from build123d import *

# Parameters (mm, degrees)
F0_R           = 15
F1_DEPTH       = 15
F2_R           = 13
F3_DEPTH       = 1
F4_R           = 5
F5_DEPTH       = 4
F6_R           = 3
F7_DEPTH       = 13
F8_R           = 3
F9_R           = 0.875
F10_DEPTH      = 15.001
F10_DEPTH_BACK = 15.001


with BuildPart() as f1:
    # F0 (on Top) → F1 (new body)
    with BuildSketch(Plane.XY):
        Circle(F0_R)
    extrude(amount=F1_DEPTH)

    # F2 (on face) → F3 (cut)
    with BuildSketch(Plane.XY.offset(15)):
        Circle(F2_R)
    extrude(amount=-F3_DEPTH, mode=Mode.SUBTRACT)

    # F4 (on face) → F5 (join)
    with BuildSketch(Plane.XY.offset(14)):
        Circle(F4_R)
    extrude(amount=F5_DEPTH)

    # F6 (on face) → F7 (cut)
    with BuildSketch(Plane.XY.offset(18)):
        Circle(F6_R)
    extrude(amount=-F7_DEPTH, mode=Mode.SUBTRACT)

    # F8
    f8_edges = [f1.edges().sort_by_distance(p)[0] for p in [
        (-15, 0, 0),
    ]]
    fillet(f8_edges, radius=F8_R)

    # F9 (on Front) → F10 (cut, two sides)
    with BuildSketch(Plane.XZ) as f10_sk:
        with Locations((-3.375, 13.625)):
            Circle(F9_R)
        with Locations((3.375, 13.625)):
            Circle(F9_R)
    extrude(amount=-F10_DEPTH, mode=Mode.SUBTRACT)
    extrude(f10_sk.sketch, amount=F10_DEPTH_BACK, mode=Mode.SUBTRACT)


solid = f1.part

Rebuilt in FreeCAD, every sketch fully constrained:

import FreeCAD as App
import Part
import Sketcher
from FreeCAD import Vector


def edges_at(feature, points):
    """Names of the edges that pass closest to the given points."""
    edges = feature.Shape.Edges
    near = lambda p: min(range(len(edges)), key=lambda i: edges[i].distToShape(Part.Vertex(*p))[0])
    return sorted({f"Edge{near(p) + 1}" for p in points})

doc = App.newDocument("Part")
body = doc.addObject("PartDesign::Body", "Body")

sketch1 = body.newObject("Sketcher::SketchObject", "Sketch")
sketch1.AttachmentSupport = (doc.getObject("XY_Plane"), [""])
sketch1.MapMode = "FlatFace"
sketch1.addGeometry(Part.Circle(Vector(0, 0, 0), Vector(0, 0, 1), 15), False)
sketch1.addConstraint(Sketcher.Constraint("Coincident", 0, 3, -1, 1))
sketch1.addConstraint(Sketcher.Constraint("Diameter", 0, 30.0))
pad1 = body.newObject("PartDesign::Pad", "Pad")
pad1.Profile = sketch1
pad1.Length = 15

sketch2 = body.newObject("Sketcher::SketchObject", "Sketch001")
sketch2.AttachmentSupport = (doc.getObject("XY_Plane"), [""])
sketch2.MapMode = "FlatFace"
sketch2.AttachmentOffset = App.Placement(Vector(0, 0, 15), App.Rotation())
sketch2.addGeometry(Part.Circle(Vector(0, 0, 0), Vector(0, 0, 1), 13), False)
sketch2.addConstraint(Sketcher.Constraint("Coincident", 0, 3, -1, 1))
sketch2.addConstraint(Sketcher.Constraint("Diameter", 0, 26.0))
pocket1 = body.newObject("PartDesign::Pocket", "Pocket")
pocket1.Profile = sketch2
pocket1.Length = 1

sketch3 = body.newObject("Sketcher::SketchObject", "Sketch002")
sketch3.AttachmentSupport = (doc.getObject("XY_Plane"), [""])
sketch3.MapMode = "FlatFace"
sketch3.AttachmentOffset = App.Placement(Vector(0, 0, 14), App.Rotation())
sketch3.addGeometry(Part.Circle(Vector(0, 0, 0), Vector(0, 0, 1), 5), False)
sketch3.addConstraint(Sketcher.Constraint("Coincident", 0, 3, -1, 1))
sketch3.addConstraint(Sketcher.Constraint("Diameter", 0, 10.0))
pad2 = body.newObject("PartDesign::Pad", "Pad001")
pad2.Profile = sketch3
pad2.Length = 4

sketch4 = body.newObject("Sketcher::SketchObject", "Sketch003")
sketch4.AttachmentSupport = (doc.getObject("XY_Plane"), [""])
sketch4.MapMode = "FlatFace"
sketch4.AttachmentOffset = App.Placement(Vector(0, 0, 18), App.Rotation())
sketch4.addGeometry(Part.Circle(Vector(0, 0, 0), Vector(0, 0, 1), 3), False)
sketch4.addConstraint(Sketcher.Constraint("Coincident", 0, 3, -1, 1))
sketch4.addConstraint(Sketcher.Constraint("Diameter", 0, 6.0))
pocket2 = body.newObject("PartDesign::Pocket", "Pocket001")
pocket2.Profile = sketch4
pocket2.Length = 13
doc.recompute()

fillet = body.newObject("PartDesign::Fillet", "Fillet")
fillet.Base = (pocket2, edges_at(pocket2, [(-15, 0, 0)]))
fillet.Radius = 3

sketch5 = body.newObject("Sketcher::SketchObject", "Sketch004")
sketch5.AttachmentSupport = (doc.getObject("XZ_Plane"), [""])
sketch5.MapMode = "FlatFace"
sketch5.addGeometry(Part.Circle(Vector(-3.4, 13.6, 0), Vector(0, 0, 1), 0.9), False)
sketch5.addGeometry(Part.Circle(Vector(3.4, 13.6, 0), Vector(0, 0, 1), 0.9), False)
sketch5.addConstraint(Sketcher.Constraint("Equal", 0, 1))
sketch5.addConstraint(Sketcher.Constraint("Symmetric", 0, 3, 1, 3, -2))
sketch5.addConstraint(Sketcher.Constraint("Diameter", 0, 1.75))
sketch5.addConstraint(Sketcher.Constraint("DistanceX", 0, 3, 1, 3, 6.75))
sketch5.addConstraint(Sketcher.Constraint("DistanceY", -1, 1, 0, 3, 13.625))
pocket3 = body.newObject("PartDesign::Pocket", "Pocket002")
pocket3.Profile = sketch5
pocket3.Type = "ThroughAll"
pocket3.Midplane = True

doc.recompute()
